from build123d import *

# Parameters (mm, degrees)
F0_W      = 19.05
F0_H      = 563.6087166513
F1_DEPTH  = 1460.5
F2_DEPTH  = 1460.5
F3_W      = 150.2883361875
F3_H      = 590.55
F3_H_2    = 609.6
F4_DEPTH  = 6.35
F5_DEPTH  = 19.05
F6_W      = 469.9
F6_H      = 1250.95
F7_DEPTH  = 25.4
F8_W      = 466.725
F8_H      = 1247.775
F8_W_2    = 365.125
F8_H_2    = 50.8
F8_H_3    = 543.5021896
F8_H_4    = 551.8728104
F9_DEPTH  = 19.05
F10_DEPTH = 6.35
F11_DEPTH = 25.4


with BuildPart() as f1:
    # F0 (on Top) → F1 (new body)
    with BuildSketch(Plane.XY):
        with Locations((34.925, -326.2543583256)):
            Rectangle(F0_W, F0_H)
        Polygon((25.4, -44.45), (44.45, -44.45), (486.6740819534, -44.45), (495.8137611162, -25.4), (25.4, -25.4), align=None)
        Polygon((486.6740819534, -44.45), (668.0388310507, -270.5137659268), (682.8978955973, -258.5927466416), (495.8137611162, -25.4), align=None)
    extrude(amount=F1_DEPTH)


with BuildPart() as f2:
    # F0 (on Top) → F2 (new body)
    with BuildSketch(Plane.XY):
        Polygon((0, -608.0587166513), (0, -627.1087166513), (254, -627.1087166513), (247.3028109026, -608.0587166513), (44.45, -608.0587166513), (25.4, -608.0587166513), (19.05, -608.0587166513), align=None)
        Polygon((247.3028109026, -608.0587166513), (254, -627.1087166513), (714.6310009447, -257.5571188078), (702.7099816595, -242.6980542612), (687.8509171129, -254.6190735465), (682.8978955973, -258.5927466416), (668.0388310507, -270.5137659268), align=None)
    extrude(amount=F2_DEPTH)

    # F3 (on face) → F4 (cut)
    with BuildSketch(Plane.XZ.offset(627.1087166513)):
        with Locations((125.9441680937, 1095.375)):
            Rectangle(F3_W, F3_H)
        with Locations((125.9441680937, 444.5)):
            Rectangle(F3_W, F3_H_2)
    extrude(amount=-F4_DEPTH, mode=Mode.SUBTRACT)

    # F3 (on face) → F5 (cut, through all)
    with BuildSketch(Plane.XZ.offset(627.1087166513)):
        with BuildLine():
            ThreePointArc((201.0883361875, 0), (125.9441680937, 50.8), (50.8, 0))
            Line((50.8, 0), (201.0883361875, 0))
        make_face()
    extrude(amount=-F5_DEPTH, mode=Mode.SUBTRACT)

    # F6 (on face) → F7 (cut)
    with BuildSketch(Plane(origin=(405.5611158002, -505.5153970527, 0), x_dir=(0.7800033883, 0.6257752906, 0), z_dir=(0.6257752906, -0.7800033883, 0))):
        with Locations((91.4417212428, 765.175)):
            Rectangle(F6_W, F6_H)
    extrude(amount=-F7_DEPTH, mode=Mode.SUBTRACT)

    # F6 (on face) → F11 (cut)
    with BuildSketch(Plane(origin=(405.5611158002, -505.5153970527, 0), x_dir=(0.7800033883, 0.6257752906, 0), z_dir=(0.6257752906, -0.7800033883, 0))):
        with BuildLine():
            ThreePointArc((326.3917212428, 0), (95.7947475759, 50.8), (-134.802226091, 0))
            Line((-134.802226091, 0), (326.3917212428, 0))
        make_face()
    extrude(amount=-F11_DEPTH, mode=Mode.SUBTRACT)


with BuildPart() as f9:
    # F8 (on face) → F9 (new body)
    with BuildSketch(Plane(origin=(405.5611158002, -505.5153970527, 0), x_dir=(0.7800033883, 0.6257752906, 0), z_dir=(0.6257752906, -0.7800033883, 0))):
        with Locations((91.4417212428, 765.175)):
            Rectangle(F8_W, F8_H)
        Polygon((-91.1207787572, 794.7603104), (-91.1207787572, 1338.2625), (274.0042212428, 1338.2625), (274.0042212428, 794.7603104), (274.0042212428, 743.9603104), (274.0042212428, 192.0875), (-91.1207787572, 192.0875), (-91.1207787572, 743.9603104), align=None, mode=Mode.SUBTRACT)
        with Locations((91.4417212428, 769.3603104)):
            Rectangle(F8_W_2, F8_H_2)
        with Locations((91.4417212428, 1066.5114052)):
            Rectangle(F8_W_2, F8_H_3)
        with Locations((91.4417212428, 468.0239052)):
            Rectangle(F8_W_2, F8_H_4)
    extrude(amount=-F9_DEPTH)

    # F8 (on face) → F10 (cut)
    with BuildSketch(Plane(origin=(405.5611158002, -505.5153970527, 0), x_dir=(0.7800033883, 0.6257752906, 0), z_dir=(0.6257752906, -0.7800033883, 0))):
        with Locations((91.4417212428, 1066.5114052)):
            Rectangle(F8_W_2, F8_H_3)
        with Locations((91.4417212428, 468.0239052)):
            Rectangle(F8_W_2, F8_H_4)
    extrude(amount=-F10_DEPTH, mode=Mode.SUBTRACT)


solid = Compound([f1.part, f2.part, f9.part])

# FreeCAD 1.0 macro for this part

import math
import FreeCAD as App
import Part
import Sketcher
Q = App.Units.Quantity

doc = App.newDocument("Part")
params = doc.addObject("Spreadsheet::Sheet", "Params")
for row, (alias, value) in enumerate([
    ("sketch1_width", "0.75 in"),
    ("sketch1_length", "0.75 in"),
    ("pad1_length", "57.5 in"),
    ("sketch2_width", "10 in"),
    ("sketch2_height", "0.75 in"),
    ("sketch2_length", "23.25 in"),
    ("sketch2_length2", "0.75 in"),
    ("sketch2_length3", "0.25 in"),
    ("pad2_length", "57.5 in"),
    ("sketch3_height", "24 in"),
    ("sketch3_height2", "23.25 in"),
    ("pocket1_length", "0.25 in"),
    ("sketch5_width", "18.5 in"),
    ("sketch5_height", "49.25 in"),
    ("pocket3_length", "1 in"),
    ("pocket4_length", "1 in"),
    ("sketch7_width", "18.375 in"),
    ("sketch7_height", "49.125 in"),
    ("pad3_length", "0.75 in"),
    ("sketch8_width", "14.375 in"),
    ("pocket5_length", "0.25 in"),
], start=1):
    params.set(f"A{row}", alias)
    params.set(f"B{row}", "=" + value)
    params.setAlias(f"B{row}", alias)

body = doc.addObject("PartDesign::Body", "Body")

# Sketch on XY plane
sketch1 = body.newObject("Sketcher::SketchObject", "Sketch")
sketch1.AttachmentSupport = (doc.getObject("XY_Plane"), [""])
sketch1.MapMode = "FlatFace"
sketch1.addGeometry([
    Part.LineSegment(App.Vector(25, -608, 0), App.Vector(44, -608, 0)),  # 0
    Part.LineSegment(App.Vector(44, -608, 0), App.Vector(44, -44, 0)),  # 1
    Part.LineSegment(App.Vector(44, -44, 0), App.Vector(487, -44, 0)),  # 2
    Part.LineSegment(App.Vector(487, -44, 0), App.Vector(668, -271, 0)),  # 3
    Part.LineSegment(App.Vector(668, -271, 0), App.Vector(683, -259, 0)),  # 4
    Part.LineSegment(App.Vector(683, -259, 0), App.Vector(496, -25, 0)),  # 5
    Part.LineSegment(App.Vector(496, -25, 0), App.Vector(25, -25, 0)),  # 6
    Part.LineSegment(App.Vector(25, -25, 0), App.Vector(25, -608, 0)),  # 7
], False)
sketch1.addConstraint([
    Sketcher.Constraint("Coincident", 0, 2, 1, 1),
    Sketcher.Constraint("Coincident", 1, 2, 2, 1),
    Sketcher.Constraint("Coincident", 2, 2, 3, 1),
    Sketcher.Constraint("Coincident", 3, 2, 4, 1),
    Sketcher.Constraint("Coincident", 4, 2, 5, 1),
    Sketcher.Constraint("Coincident", 5, 2, 6, 1),
    Sketcher.Constraint("Coincident", 6, 2, 7, 1),
    Sketcher.Constraint("Coincident", 7, 2, 0, 1),
    Sketcher.Constraint("Horizontal", 0),
    Sketcher.Constraint("Vertical", 1),
    Sketcher.Constraint("Horizontal", 2),
    Sketcher.Constraint("Horizontal", 6),
    Sketcher.Constraint("Vertical", 7),
    Sketcher.Constraint("Perpendicular", 3, 4),
    Sketcher.Constraint("Perpendicular", 4, 5),
    Sketcher.Constraint("DistanceY", 5, 2, -1, 1, Q("1 in")),
    Sketcher.Constraint("DistanceX", -1, 1, 6, 2, Q("1 in")),
    Sketcher.Constraint("DistanceX", 0, 1, 0, 2, Q("0.75 in")),
    Sketcher.Constraint("Distance", 4, Q("0.75 in")),
    Sketcher.Constraint("DistanceY", 1, 2, -1, 1, Q("1.75 in")),
    Sketcher.Constraint("DistanceX", 2, 1, 2, 2, Q("442.224082 mm")),
    Sketcher.Constraint("DistanceX", 6, 2, 6, 1, Q("470.413761 mm")),
    Sketcher.Constraint("Distance", 3, Q("289.824082 mm")),
    Sketcher.Constraint("DistanceY", 1, 1, 1, 2, Q("563.608717 mm")),
])
sketch1.setExpression("Constraints[17]", "Params.sketch1_width")
sketch1.setExpression("Constraints[18]", "Params.sketch1_length")
pad1 = body.newObject("PartDesign::Pad", "Pad")
pad1.Profile = sketch1
pad1.setExpression("Length", "Params.pad1_length")
body2 = doc.addObject("PartDesign::Body", "Body001")

# Sketch on XY plane
sketch2 = body2.newObject("Sketcher::SketchObject", "Sketch001")
sketch2.AttachmentSupport = (doc.getObject("XY_Plane001"), [""])
sketch2.MapMode = "FlatFace"
sketch2.addGeometry([
    Part.LineSegment(App.Vector(0, -608, 0), App.Vector(0, -627, 0)),  # 0
    Part.LineSegment(App.Vector(0, -627, 0), App.Vector(254, -627, 0)),  # 1
    Part.LineSegment(App.Vector(254, -627, 0), App.Vector(715, -258, 0)),  # 2
    Part.LineSegment(App.Vector(715, -258, 0), App.Vector(703, -243, 0)),  # 3
    Part.LineSegment(App.Vector(703, -243, 0), App.Vector(688, -255, 0)),  # 4
    Part.LineSegment(App.Vector(688, -255, 0), App.Vector(683, -259, 0)),  # 5
    Part.LineSegment(App.Vector(683, -259, 0), App.Vector(668, -271, 0)),  # 6
    Part.LineSegment(App.Vector(668, -271, 0), App.Vector(247, -608, 0)),  # 7
    Part.LineSegment(App.Vector(247, -608, 0), App.Vector(0, -608, 0)),  # 8
], False)
sketch2.addConstraint([
    Sketcher.Constraint("Coincident", 0, 2, 1, 1),
    Sketcher.Constraint("Coincident", 1, 2, 2, 1),
    Sketcher.Constraint("Coincident", 2, 2, 3, 1),
    Sketcher.Constraint("Coincident", 3, 2, 4, 1),
    Sketcher.Constraint("Coincident", 4, 2, 5, 1),
    Sketcher.Constraint("Coincident", 5, 2, 6, 1),
    Sketcher.Constraint("Coincident", 6, 2, 7, 1),
    Sketcher.Constraint("Coincident", 7, 2, 8, 1),
    Sketcher.Constraint("Coincident", 8, 2, 0, 1),
    Sketcher.Constraint("Vertical", 0),
    Sketcher.Constraint("Horizontal", 1),
    Sketcher.Constraint("Horizontal", 8),
    Sketcher.Constraint("PointOnObject", 0, 2, -2),
    Sketcher.Constraint("Perpendicular", 2, 3),
    Sketcher.Constraint("Perpendicular", 3, 4),
    Sketcher.Constraint("Parallel", 4, 5),
    Sketcher.Constraint("Parallel", 5, 6),
    Sketcher.Constraint("Parallel", 6, 7),
    Sketcher.Constraint("Equal", 3, 4),
    Sketcher.Constraint("Equal", 4, 6),
    Sketcher.Constraint("DistanceX", 1, 1, 1, 2, Q("10 in")),
    Sketcher.Constraint("DistanceY", 0, 2, 0, 1, Q("0.75 in")),
    Sketcher.Constraint("Distance", 2, Q("23.25 in")),
    Sketcher.Constraint("Distance", 3, Q("0.75 in")),
    Sketcher.Constraint("Distance", 5, Q("0.25 in")),
    Sketcher.Constraint("DistanceX", 8, 2, 8, 1, Q("247.302811 mm")),
    Sketcher.Constraint("DistanceY", 2, 2, -1, 1, Q("257.557119 mm")),
])
sketch2.setExpression("Constraints[20]", "Params.sketch2_width")
sketch2.setExpression("Constraints[21]", "Params.sketch2_height")
sketch2.setExpression("Constraints[22]", "Params.sketch2_length")
sketch2.setExpression("Constraints[23]", "Params.sketch2_length2")
sketch2.setExpression("Constraints[24]", "Params.sketch2_length3")
pad2 = body2.newObject("PartDesign::Pad", "Pad001")
pad2.Profile = sketch2
pad2.setExpression("Length", "Params.pad2_length")

# Sketch on XZ plane
sketch3 = body2.newObject("Sketcher::SketchObject", "Sketch002")
sketch3.AttachmentSupport = (doc.getObject("XZ_Plane001"), [""])
sketch3.MapMode = "FlatFace"
sketch3.AttachmentOffset = App.Placement(App.Vector(0, 0, 627.108717), App.Rotation())
sketch3.addGeometry([
    Part.LineSegment(App.Vector(51, 1391, 0), App.Vector(51, 800, 0)),  # 0
    Part.LineSegment(App.Vector(51, 800, 0), App.Vector(201, 800, 0)),  # 1
    Part.LineSegment(App.Vector(201, 800, 0), App.Vector(201, 1391, 0)),  # 2
    Part.LineSegment(App.Vector(201, 1391, 0), App.Vector(51, 1391, 0)),  # 3
    Part.LineSegment(App.Vector(51, 749, 0), App.Vector(51, 140, 0)),  # 4
    Part.LineSegment(App.Vector(51, 140, 0), App.Vector(201, 140, 0)),  # 5
    Part.LineSegment(App.Vector(201, 140, 0), App.Vector(201, 749, 0)),  # 6
    Part.LineSegment(App.Vector(201, 749, 0), App.Vector(51, 749, 0)),  # 7
], False)
sketch3.addConstraint([
    Sketcher.Constraint("Coincident", 0, 2, 1, 1),
    Sketcher.Constraint("Coincident", 1, 2, 2, 1),
    Sketcher.Constraint("Coincident", 2, 2, 3, 1),
    Sketcher.Constraint("Coincident", 3, 2, 0, 1),
    Sketcher.Constraint("Coincident", 4, 2, 5, 1),
    Sketcher.Constraint("Coincident", 5, 2, 6, 1),
    Sketcher.Constraint("Coincident", 6, 2, 7, 1),
    Sketcher.Constraint("Coincident", 7, 2, 4, 1),
    Sketcher.Constraint("Vertical", 0),
    Sketcher.Constraint("Horizontal", 1),
    Sketcher.Constraint("Vertical", 2),
    Sketcher.Constraint("Horizontal", 3),
    Sketcher.Constraint("Vertical", 4),
    Sketcher.Constraint("Horizontal", 5),
    Sketcher.Constraint("Vertical", 6),
    Sketcher.Constraint("Horizontal", 7),
    Sketcher.Constraint("Vertical", 3, 2, 4, 2),
    Sketcher.Constraint("Vertical", 2, 2, 5, 2),
    Sketcher.Constraint("DistanceY", 4, 2, 4, 1, Q("24 in")),
    Sketcher.Constraint("DistanceX", -1, 1, 0, 2, Q("2 in")),
    Sketcher.Constraint("DistanceY", 4, 2, 0, 2, Q("26 in")),
    Sketcher.Constraint("DistanceY", 0, 2, 0, 1, Q("23.25 in")),
    Sketcher.Constraint("DistanceY", -1, 1, 0, 2, Q("31.5 in")),
    Sketcher.Constraint("DistanceX", 1, 1, 1, 2, Q("150.288336 mm")),
])
sketch3.setExpression("Constraints[18]", "Params.sketch3_height")
sketch3.setExpression("Constraints[21]", "Params.sketch3_height2")
pocket1 = body2.newObject("PartDesign::Pocket", "Pocket")
pocket1.Profile = sketch3
pocket1.setExpression("Length", "Params.pocket1_length")

# Sketch on XZ plane
sketch4 = body2.newObject("Sketcher::SketchObject", "Sketch003")
sketch4.AttachmentSupport = (doc.getObject("XZ_Plane001"), [""])
sketch4.MapMode = "FlatFace"
sketch4.AttachmentOffset = App.Placement(App.Vector(0, 0, 627.108717), App.Rotation())
sketch4.addGeometry([
    Part.ArcOfCircle(Part.Circle(App.Vector(126, -30, 0), App.Vector(0, 0, 1), 81), math.radians(22), math.radians(158)),
    Part.LineSegment(App.Vector(51, 0, 0), App.Vector(201, 0, 0)),
], False)
sketch4.addConstraint([
    Sketcher.Constraint("Coincident", 0, 1, 1, 2),
    Sketcher.Constraint("Coincident", 1, 1, 0, 2),
    Sketcher.Constraint("Horizontal", 1),
    Sketcher.Constraint("PointOnObject", 0, 1, -1),
    Sketcher.Constraint("DistanceX", -1, 1, 1, 1, Q("2 in")),
    Sketcher.Constraint("Radius", 0, Q("80.977224 mm")),
    Sketcher.Constraint("DistanceX", 1, 1, 1, 2, Q("150.288336 mm")),
])
pocket2 = body2.newObject("PartDesign::Pocket", "Pocket001")
pocket2.Profile = sketch4
pocket2.Type = "ThroughAll"

# Sketch on an angled plane
sketch5 = body2.newObject("Sketcher::SketchObject", "Sketch004")
sketch5.Placement = App.Placement(App.Vector(405.561116, -505.515397, 0), App.Rotation(App.Vector(0.780003388, 0.625775291, 0), App.Vector(0, 0, 1), App.Vector(0.625775291, -0.780003388, 0), "ZXY"))
sketch5.addGeometry([
    Part.LineSegment(App.Vector(-144, 1391, 0), App.Vector(-144, 140, 0)),
    Part.LineSegment(App.Vector(-144, 140, 0), App.Vector(326, 140, 0)),
    Part.LineSegment(App.Vector(326, 140, 0), App.Vector(326, 1391, 0)),
    Part.LineSegment(App.Vector(326, 1391, 0), App.Vector(-144, 1391, 0)),
], False)
sketch5.addConstraint([
    Sketcher.Constraint("Coincident", 0, 2, 1, 1),
    Sketcher.Constraint("Coincident", 1, 2, 2, 1),
    Sketcher.Constraint("Coincident", 2, 2, 3, 1),
    Sketcher.Constraint("Coincident", 3, 2, 0, 1),
    Sketcher.Constraint("Vertical", 0),
    Sketcher.Constraint("Horizontal", 1),
    Sketcher.Constraint("Vertical", 2),
    Sketcher.Constraint("Horizontal", 3),
    Sketcher.Constraint("DistanceX", 1, 1, 1, 2, Q("18.5 in")),
    Sketcher.Constraint("DistanceY", 0, 2, 0, 1, Q("49.25 in")),
    Sketcher.Constraint("DistanceY", -1, 1, 0, 2, Q("5.5 in")),
    Sketcher.Constraint("DistanceX", 0, 2, -1, 1, Q("143.508279 mm")),
])
sketch5.setExpression("Constraints[8]", "Params.sketch5_width")
sketch5.setExpression("Constraints[9]", "Params.sketch5_height")
pocket3 = body2.newObject("PartDesign::Pocket", "Pocket002")
pocket3.Profile = sketch5
pocket3.setExpression("Length", "Params.pocket3_length")

# Sketch on an angled plane
sketch6 = body2.newObject("Sketcher::SketchObject", "Sketch005")
sketch6.Placement = App.Placement(App.Vector(405.561116, -505.515397, 0), App.Rotation(App.Vector(0.780003388, 0.625775291, 0), App.Vector(0, 0, 1), App.Vector(0.625775291, -0.780003388, 0), "ZXY"))
sketch6.addGeometry([
    Part.ArcOfCircle(Part.Circle(App.Vector(96, -498, 0), App.Vector(0, 0, 1), 549), math.radians(65), math.radians(115)),
    Part.LineSegment(App.Vector(-135, 0, 0), App.Vector(326, 0, 0)),
], False)
sketch6.addConstraint([
    Sketcher.Constraint("Coincident", 0, 1, 1, 2),
    Sketcher.Constraint("Coincident", 1, 1, 0, 2),
    Sketcher.Constraint("Horizontal", 1),
    Sketcher.Constraint("PointOnObject", 0, 1, -1),
    Sketcher.Constraint("Radius", 0, Q("548.775633 mm")),
    Sketcher.Constraint("DistanceX", 1, 1, 1, 2, Q("461.193947 mm")),
    Sketcher.Constraint("DistanceX", -1, 1, 0, 3, Q("95.794748 mm")),
])
pocket4 = body2.newObject("PartDesign::Pocket", "Pocket003")
pocket4.Profile = sketch6
pocket4.setExpression("Length", "Params.pocket4_length")
body3 = doc.addObject("PartDesign::Body", "Body002")

# Sketch on an angled plane
sketch7 = body3.newObject("Sketcher::SketchObject", "Sketch006")
sketch7.Placement = App.Placement(App.Vector(405.561116, -505.515397, 0), App.Rotation(App.Vector(0.780003388, 0.625775291, 0), App.Vector(0, 0, 1), App.Vector(0.625775291, -0.780003388, 0), "ZXY"))
sketch7.addGeometry([
    Part.LineSegment(App.Vector(-142, 1389, 0), App.Vector(-142, 141, 0)),
    Part.LineSegment(App.Vector(-142, 141, 0), App.Vector(325, 141, 0)),
    Part.LineSegment(App.Vector(325, 141, 0), App.Vector(325, 1389, 0)),
    Part.LineSegment(App.Vector(325, 1389, 0), App.Vector(-142, 1389, 0)),
], False)
sketch7.addConstraint([
    Sketcher.Constraint("Coincident", 0, 2, 1, 1),
    Sketcher.Constraint("Coincident", 1, 2, 2, 1),
    Sketcher.Constraint("Coincident", 2, 2, 3, 1),
    Sketcher.Constraint("Coincident", 3, 2, 0, 1),
    Sketcher.Constraint("Vertical", 0),
    Sketcher.Constraint("Horizontal", 1),
    Sketcher.Constraint("Vertical", 2),
    Sketcher.Constraint("Horizontal", 3),
    Sketcher.Constraint("DistanceX", 1, 1, 1, 2, Q("18.375 in")),
    Sketcher.Constraint("DistanceY", 0, 2, 0, 1, Q("49.125 in")),
    Sketcher.Constraint("DistanceY", -1, 1, 0, 2, Q("5.5625 in")),
    Sketcher.Constraint("DistanceX", 0, 2, -1, 1, Q("141.920779 mm")),
])
sketch7.setExpression("Constraints[8]", "Params.sketch7_width")
sketch7.setExpression("Constraints[9]", "Params.sketch7_height")
pad3 = body3.newObject("PartDesign::Pad", "Pad002")
pad3.Profile = sketch7
pad3.setExpression("Length", "Params.pad3_length")
pad3.Reversed = True

# Sketch on an angled plane
sketch8 = body3.newObject("Sketcher::SketchObject", "Sketch007")
sketch8.Placement = App.Placement(App.Vector(405.561116, -505.515397, 0), App.Rotation(App.Vector(0.780003388, 0.625775291, 0), App.Vector(0, 0, 1), App.Vector(0.625775291, -0.780003388, 0), "ZXY"))
sketch8.addGeometry([
    Part.LineSegment(App.Vector(-91, 1338, 0), App.Vector(-91, 795, 0)),  # 0
    Part.LineSegment(App.Vector(-91, 795, 0), App.Vector(274, 795, 0)),  # 1
    Part.LineSegment(App.Vector(274, 795, 0), App.Vector(274, 1338, 0)),  # 2
    Part.LineSegment(App.Vector(274, 1338, 0), App.Vector(-91, 1338, 0)),  # 3
    Part.LineSegment(App.Vector(-91, 744, 0), App.Vector(-91, 192, 0)),  # 4
    Part.LineSegment(App.Vector(-91, 192, 0), App.Vector(274, 192, 0)),  # 5
    Part.LineSegment(App.Vector(274, 192, 0), App.Vector(274, 744, 0)),  # 6
    Part.LineSegment(App.Vector(274, 744, 0), App.Vector(-91, 744, 0)),  # 7
], False)
sketch8.addConstraint([
    Sketcher.Constraint("Coincident", 0, 2, 1, 1),
    Sketcher.Constraint("Coincident", 1, 2, 2, 1),
    Sketcher.Constraint("Coincident", 2, 2, 3, 1),
    Sketcher.Constraint("Coincident", 3, 2, 0, 1),
    Sketcher.Constraint("Coincident", 4, 2, 5, 1),
    Sketcher.Constraint("Coincident", 5, 2, 6, 1),
    Sketcher.Constraint("Coincident", 6, 2, 7, 1),
    Sketcher.Constraint("Coincident", 7, 2, 4, 1),
    Sketcher.Constraint("Vertical", 0),
    Sketcher.Constraint("Horizontal", 1),
    Sketcher.Constraint("Vertical", 2),
    Sketcher.Constraint("Horizontal", 3),
    Sketcher.Constraint("Vertical", 4),
    Sketcher.Constraint("Horizontal", 5),
    Sketcher.Constraint("Vertical", 6),
    Sketcher.Constraint("Horizontal", 7),
    Sketcher.Constraint("Vertical", 3, 2, 4, 2),
    Sketcher.Constraint("Vertical", 2, 2, 5, 2),
    Sketcher.Constraint("DistanceY", 6, 2, 1, 2, Q("2 in")),
    Sketcher.Constraint("DistanceX", 1, 1, 1, 2, Q("14.375 in")),
    Sketcher.Constraint("DistanceY", -1, 1, 2, 2, Q("52.6875 in")),
    Sketcher.Constraint("DistanceY", -1, 1, 4, 2, Q("7.5625 in")),
    Sketcher.Constraint("DistanceY", 0, 2, 0, 1, Q("543.50219 mm")),
    Sketcher.Constraint("DistanceX", 0, 2, -1, 1, Q("91.120779 mm")),
])
sketch8.setExpression("Constraints[19]", "Params.sketch8_width")
pocket5 = body3.newObject("PartDesign::Pocket", "Pocket004")
pocket5.Profile = sketch8
pocket5.setExpression("Length", "Params.pocket5_length")

doc.recompute()
